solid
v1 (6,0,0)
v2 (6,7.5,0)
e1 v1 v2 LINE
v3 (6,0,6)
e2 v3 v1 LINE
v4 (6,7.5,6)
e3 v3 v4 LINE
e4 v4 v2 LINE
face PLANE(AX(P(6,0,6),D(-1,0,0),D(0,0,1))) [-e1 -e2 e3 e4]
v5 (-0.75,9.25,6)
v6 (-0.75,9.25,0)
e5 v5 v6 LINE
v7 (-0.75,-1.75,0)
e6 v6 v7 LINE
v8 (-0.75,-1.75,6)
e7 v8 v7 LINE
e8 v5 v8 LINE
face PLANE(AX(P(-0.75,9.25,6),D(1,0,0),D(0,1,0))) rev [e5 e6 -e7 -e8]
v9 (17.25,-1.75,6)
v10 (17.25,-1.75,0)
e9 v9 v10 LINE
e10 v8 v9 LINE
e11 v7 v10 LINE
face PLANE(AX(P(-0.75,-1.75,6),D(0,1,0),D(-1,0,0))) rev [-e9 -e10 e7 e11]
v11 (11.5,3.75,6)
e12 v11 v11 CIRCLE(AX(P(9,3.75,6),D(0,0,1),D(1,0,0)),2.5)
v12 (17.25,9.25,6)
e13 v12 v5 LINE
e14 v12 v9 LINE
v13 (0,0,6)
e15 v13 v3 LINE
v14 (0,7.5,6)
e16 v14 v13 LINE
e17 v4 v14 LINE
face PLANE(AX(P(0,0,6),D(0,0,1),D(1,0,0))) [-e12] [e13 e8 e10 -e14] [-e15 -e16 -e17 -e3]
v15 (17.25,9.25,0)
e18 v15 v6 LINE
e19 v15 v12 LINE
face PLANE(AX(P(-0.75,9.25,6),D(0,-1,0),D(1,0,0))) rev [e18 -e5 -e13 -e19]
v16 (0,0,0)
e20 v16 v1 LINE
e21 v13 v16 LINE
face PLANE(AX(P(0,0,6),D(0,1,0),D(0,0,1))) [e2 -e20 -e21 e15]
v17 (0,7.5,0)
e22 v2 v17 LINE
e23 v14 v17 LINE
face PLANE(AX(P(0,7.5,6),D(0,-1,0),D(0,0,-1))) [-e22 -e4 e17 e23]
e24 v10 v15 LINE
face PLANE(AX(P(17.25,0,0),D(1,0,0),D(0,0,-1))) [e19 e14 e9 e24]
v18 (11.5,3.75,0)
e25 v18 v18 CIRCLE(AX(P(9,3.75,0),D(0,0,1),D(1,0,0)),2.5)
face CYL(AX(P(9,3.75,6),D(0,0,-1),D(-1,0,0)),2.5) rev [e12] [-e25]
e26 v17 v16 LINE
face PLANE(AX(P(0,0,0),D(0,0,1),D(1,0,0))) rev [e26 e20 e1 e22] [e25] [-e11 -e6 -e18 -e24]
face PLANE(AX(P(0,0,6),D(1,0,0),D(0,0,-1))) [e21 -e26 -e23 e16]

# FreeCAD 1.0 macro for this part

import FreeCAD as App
import Part
import Sketcher
from FreeCAD import Vector
Q = App.Units.Quantity

doc = App.newDocument("Part")
params = doc.addObject("Spreadsheet::Sheet", "Params")
for row, (alias, value) in enumerate([
    ("sketch1_diameter", "5 mm"),
    ("sketch1_width", "13 mm"),
    ("sketch1_width2", "6 mm"),
    ("sketch1_height", "11 mm"),
    ("sketch1_height2", "7.5 mm"),
    ("pad1_length", "6 mm"),
    ("sketch2_width", "11 mm"),
    ("sketch2_height", "6 mm"),
    ("pad2_length", "5 mm"),
], start=1):
    params.set(f"A{row}", alias)
    params.set(f"B{row}", "=" + value)
    params.setAlias(f"B{row}", alias)

body = doc.addObject("PartDesign::Body", "Body")

sketch1 = doc.addObject("Sketcher::SketchObject", "Sketch")
body.addObject(sketch1)
sketch1.AttachmentSupport = (doc.XY_Plane, [""])
sketch1.MapMode = "FlatFace"
sketch1.addGeometry([
    Part.LineSegment(Vector(-0.75, 9.25, 0), Vector(-0.75, -1.75, 0)),
    Part.LineSegment(Vector(-0.75, -1.75, 0), Vector(12.25, -1.75, 0)),
    Part.LineSegment(Vector(12.25, -1.75, 0), Vector(12.25, 9.25, 0)),
    Part.LineSegment(Vector(12.25, 9.25, 0), Vector(-0.75, 9.25, 0)),
    Part.LineSegment(Vector(6, 0, 0), Vector(0, 0, 0)),
    Part.LineSegment(Vector(0, 0, 0), Vector(0, 7.5, 0)),
    Part.LineSegment(Vector(0, 7.5, 0), Vector(6, 7.5, 0)),
    Part.LineSegment(Vector(6, 7.5, 0), Vector(6, 0, 0)),
    Part.Circle(Vector(9, 3.75, 0), Vector(0, 0, 1), 2.5),
], False)
sketch1.addConstraint([
    Sketcher.Constraint("Coincident", 0, 2, 1, 1),
    Sketcher.Constraint("Coincident", 1, 2, 2, 1),
    Sketcher.Constraint("Coincident", 2, 2, 3, 1),
    Sketcher.Constraint("Coincident", 3, 2, 0, 1),
    Sketcher.Constraint("Coincident", 4, 2, 5, 1),
    Sketcher.Constraint("Coincident", 5, 2, 6, 1),
    Sketcher.Constraint("Coincident", 6, 2, 7, 1),
    Sketcher.Constraint("Coincident", 7, 2, 4, 1),
    Sketcher.Constraint("Vertical", 0),
    Sketcher.Constraint("Horizontal", 1),
    Sketcher.Constraint("Vertical", 2),
    Sketcher.Constraint("Horizontal", 3),
    Sketcher.Constraint("Horizontal", 4),
    Sketcher.Constraint("Vertical", 5),
    Sketcher.Constraint("Horizontal", 6),
    Sketcher.Constraint("Vertical", 7),
    Sketcher.Constraint("Coincident", 4, 2, -1, 1),
    Sketcher.Constraint("Diameter", 8, Q("5 mm")),
    Sketcher.Constraint("DistanceX", 1, 1, 1, 2, Q("13 mm")),
    Sketcher.Constraint("DistanceX", 4, 2, 4, 1, Q("6 mm")),
    Sketcher.Constraint("DistanceY", 0, 2, 0, 1, Q("11 mm")),
    Sketcher.Constraint("DistanceY", 5, 1, 5, 2, Q("7.5 mm")),
    Sketcher.Constraint("DistanceX", -1, 1, 8, 3, Q("9 mm")),
    Sketcher.Constraint("DistanceY", 0, 2, 8, 3, Q("5.5 mm")),
    Sketcher.Constraint("DistanceY", -1, 1, 8, 3, Q("3.75 mm")),
    Sketcher.Constraint("DistanceX", 0, 2, -1, 1, Q("0.75 mm")),
])
sketch1.setExpression("Constraints[17]", "Params.sketch1_diameter")
sketch1.setExpression("Constraints[18]", "Params.sketch1_width")
sketch1.setExpression("Constraints[19]", "Params.sketch1_width2")
sketch1.setExpression("Constraints[20]", "Params.sketch1_height")
sketch1.setExpression("Constraints[21]", "Params.sketch1_height2")
pad1 = doc.addObject("PartDesign::Pad", "Pad")
body.addObject(pad1)
pad1.Profile = sketch1
pad1.setExpression("Length", "Params.pad1_length")

sketch2 = doc.addObject("Sketcher::SketchObject", "Sketch001")
body.addObject(sketch2)
sketch2.AttachmentSupport = (doc.YZ_Plane, [""])
sketch2.MapMode = "FlatFace"
sketch2.AttachmentOffset = App.Placement(Vector(0, 0, 12.25), App.Rotation())
sketch2.addGeometry([
    Part.LineSegment(Vector(9.25, 6, 0), Vector(-1.75, 6, 0)),
    Part.LineSegment(Vector(-1.75, 6, 0), Vector(-1.75, 0, 0)),
    Part.LineSegment(Vector(-1.75, 0, 0), Vector(9.25, 0, 0)),
    Part.LineSegment(Vector(9.25, 0, 0), Vector(9.25, 6, 0)),
], False)
sketch2.addConstraint([
    Sketcher.Constraint("Coincident", 0, 2, 1, 1),
    Sketcher.Constraint("Coincident", 1, 2, 2, 1),
    Sketcher.Constraint("Coincident", 2, 2, 3, 1),
    Sketcher.Constraint("Coincident", 3, 2, 0, 1),
    Sketcher.Constraint("Horizontal", 0),
    Sketcher.Constraint("Vertical", 1),
    Sketcher.Constraint("Horizontal", 2),
    Sketcher.Constraint("Vertical", 3),
    Sketcher.Constraint("PointOnObject", 1, 2, -1),
    Sketcher.Constraint("DistanceX", 0, 2, 0, 1, Q("11 mm")),
    Sketcher.Constraint("DistanceY", 1, 2, 1, 1, Q("6 mm")),
    Sketcher.Constraint("DistanceX", 0, 2, -1, 1, Q("1.75 mm")),
])
sketch2.setExpression("Constraints[9]", "Params.sketch2_width")
sketch2.setExpression("Constraints[10]", "Params.sketch2_height")
pad2 = doc.addObject("PartDesign::Pad", "Pad001")
body.addObject(pad2)
pad2.Profile = sketch2
pad2.setExpression("Length", "Params.pad2_length")

doc.recompute()
